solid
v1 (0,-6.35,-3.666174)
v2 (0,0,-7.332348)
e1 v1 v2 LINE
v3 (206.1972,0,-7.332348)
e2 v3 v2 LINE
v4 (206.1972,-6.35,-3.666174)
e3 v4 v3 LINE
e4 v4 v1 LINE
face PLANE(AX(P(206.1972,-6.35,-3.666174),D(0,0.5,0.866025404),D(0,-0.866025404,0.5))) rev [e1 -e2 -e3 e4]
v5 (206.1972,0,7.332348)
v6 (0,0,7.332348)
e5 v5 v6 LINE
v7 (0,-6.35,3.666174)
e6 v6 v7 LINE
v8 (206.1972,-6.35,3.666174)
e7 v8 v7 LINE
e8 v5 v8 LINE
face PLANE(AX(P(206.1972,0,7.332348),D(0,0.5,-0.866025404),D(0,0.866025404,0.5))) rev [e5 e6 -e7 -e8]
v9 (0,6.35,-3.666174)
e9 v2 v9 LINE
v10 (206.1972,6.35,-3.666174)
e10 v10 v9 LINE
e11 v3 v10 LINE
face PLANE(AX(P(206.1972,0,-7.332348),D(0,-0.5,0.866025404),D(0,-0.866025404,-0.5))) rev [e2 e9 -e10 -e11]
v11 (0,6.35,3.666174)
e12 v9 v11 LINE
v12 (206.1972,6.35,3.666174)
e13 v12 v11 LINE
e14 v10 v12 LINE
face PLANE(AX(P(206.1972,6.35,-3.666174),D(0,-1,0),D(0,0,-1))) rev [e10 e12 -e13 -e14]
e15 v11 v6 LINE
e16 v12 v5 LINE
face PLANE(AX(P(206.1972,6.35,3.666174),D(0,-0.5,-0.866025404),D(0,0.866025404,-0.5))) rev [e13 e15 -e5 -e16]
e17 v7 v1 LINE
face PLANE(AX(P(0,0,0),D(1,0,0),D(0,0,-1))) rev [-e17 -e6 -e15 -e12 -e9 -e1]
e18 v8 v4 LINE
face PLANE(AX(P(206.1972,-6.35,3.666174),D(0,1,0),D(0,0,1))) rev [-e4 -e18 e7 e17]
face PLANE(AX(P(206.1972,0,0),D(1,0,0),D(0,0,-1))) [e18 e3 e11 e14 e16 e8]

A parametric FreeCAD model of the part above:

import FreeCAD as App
import Part
import Sketcher
Q = App.Units.Quantity

doc = App.newDocument("Part")
body = doc.addObject("PartDesign::Body", "Body")

# Sketch on YZ plane
sketch1 = body.newObject("Sketcher::SketchObject", "Sketch")
sketch1.AttachmentSupport = (doc.getObject("YZ_Plane"), [""])
sketch1.MapMode = "FlatFace"
sketch1.addGeometry(Part.LineSegment(App.Vector(6, -4, 0), App.Vector(6, 4, 0)), False)
sketch1.addGeometry(Part.LineSegment(App.Vector(6, 4, 0), App.Vector(0, 7, 0)), False)
sketch1.addGeometry(Part.LineSegment(App.Vector(0, 7, 0), App.Vector(-6, 4, 0)), False)
sketch1.addGeometry(Part.LineSegment(App.Vector(-6, 4, 0), App.Vector(-6, -4, 0)), False)
sketch1.addGeometry(Part.LineSegment(App.Vector(-6, -4, 0), App.Vector(0, -7, 0)), False)
sketch1.addGeometry(Part.LineSegment(App.Vector(0, -7, 0), App.Vector(6, -4, 0)), False)
sketch1.addConstraint(Sketcher.Constraint("Coincident", 0, 2, 1, 1))
sketch1.addConstraint(Sketcher.Constraint("Coincident", 1, 2, 2, 1))
sketch1.addConstraint(Sketcher.Constraint("Coincident", 2, 2, 3, 1))
sketch1.addConstraint(Sketcher.Constraint("Coincident", 3, 2, 4, 1))
sketch1.addConstraint(Sketcher.Constraint("Coincident", 4, 2, 5, 1))
sketch1.addConstraint(Sketcher.Constraint("Coincident", 5, 2, 0, 1))
sketch1.addConstraint(Sketcher.Constraint("Vertical", 0))
sketch1.addConstraint(Sketcher.Constraint("Vertical", 3))
sketch1.addConstraint(Sketcher.Constraint("Symmetric", 0, 2, 3, 2, -1, 1))
sketch1.addConstraint(Sketcher.Constraint("Symmetric", 1, 2, 4, 2, -1, 1))
sketch1.addConstraint(Sketcher.Constraint("PointOnObject", 1, 2, -2))
sketch1.addConstraint(Sketcher.Constraint("Parallel", 2, 5))
sketch1.addConstraint(Sketcher.Constraint("Horizontal", 0, 2, 2, 2))
sketch1.addConstraint(Sketcher.Constraint("Angle", 1, Q("150 deg")))
sketch1.addConstraint(Sketcher.Constraint("DistanceX", 2, 2, 0, 2, Q("0.5 in")))
sketch1.addConstraint(Sketcher.Constraint("DistanceY", 0, 1, 0, 2, 7.332348))
pad1 = body.newObject("PartDesign::Pad", "Pad")
pad1.Profile = sketch1
pad1.Length = Q("8.118 in")

doc.recompute()
